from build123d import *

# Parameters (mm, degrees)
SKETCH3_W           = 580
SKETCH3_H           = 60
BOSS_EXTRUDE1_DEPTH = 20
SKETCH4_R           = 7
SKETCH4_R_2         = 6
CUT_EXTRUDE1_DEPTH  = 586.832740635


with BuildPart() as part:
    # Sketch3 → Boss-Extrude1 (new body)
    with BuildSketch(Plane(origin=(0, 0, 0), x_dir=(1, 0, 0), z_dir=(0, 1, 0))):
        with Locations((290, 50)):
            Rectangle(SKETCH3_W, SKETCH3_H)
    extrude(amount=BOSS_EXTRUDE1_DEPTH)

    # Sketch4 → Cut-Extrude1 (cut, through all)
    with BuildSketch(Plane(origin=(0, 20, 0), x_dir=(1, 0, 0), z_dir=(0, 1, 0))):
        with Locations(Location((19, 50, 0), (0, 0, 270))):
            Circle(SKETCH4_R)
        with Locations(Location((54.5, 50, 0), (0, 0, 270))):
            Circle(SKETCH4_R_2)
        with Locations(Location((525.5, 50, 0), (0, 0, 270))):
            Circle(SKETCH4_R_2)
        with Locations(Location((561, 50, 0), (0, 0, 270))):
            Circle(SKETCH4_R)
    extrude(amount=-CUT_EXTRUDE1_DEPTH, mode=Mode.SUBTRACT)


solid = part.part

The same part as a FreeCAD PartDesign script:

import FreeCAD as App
import Part
import Sketcher

V = App.Vector


def add_polygon(sketch, points):
    """Adds a closed chain of lines whose ends are joined by coincident constraints."""
    first, n = sketch.GeometryCount, len(points)
    for a, b in zip(points, points[1:] + points[:1]):
        sketch.addGeometry(Part.LineSegment(App.Vector(*a, 0), App.Vector(*b, 0)), False)
    for i in range(n):
        sketch.addConstraint(Sketcher.Constraint("Coincident", first + i, 2, first + (i + 1) % n, 1))

doc = App.newDocument("Part")
body = doc.addObject("PartDesign::Body", "Body")

sketch1 = body.newObject("Sketcher::SketchObject", "Sketch")
sketch1.AttachmentSupport = (doc.getObject("XZ_Plane"), [""])
sketch1.MapMode = "FlatFace"
add_polygon(sketch1, [(0, -80), (0, -20), (580, -20), (580, -80)])
sketch1.addConstraint([
    Sketcher.Constraint("Vertical", 0),
    Sketcher.Constraint("Horizontal", 1),
    Sketcher.Constraint("Vertical", 2),
    Sketcher.Constraint("Horizontal", 3),
    Sketcher.Constraint("PointOnObject", 0, 2, -2),
    Sketcher.Constraint("DistanceX", 1, 1, 1, 2, 580.0),
    Sketcher.Constraint("DistanceY", 0, 1, 0, 2, 60.0),
    Sketcher.Constraint("DistanceY", 0, 2, -1, 1, 20.0),
])
pad1 = body.newObject("PartDesign::Pad", "Pad")
pad1.Profile = sketch1
pad1.Length = 20
pad1.Reversed = True

sketch2 = body.newObject("Sketcher::SketchObject", "Sketch001")
sketch2.AttachmentSupport = (doc.getObject("XZ_Plane"), [""])
sketch2.MapMode = "FlatFace"
sketch2.AttachmentOffset = App.Placement(V(0, 0, -20), App.Rotation())
sketch2.addGeometry([
    Part.Circle(V(19, -50, 0), V(0, 0, 1), 7),
    Part.Circle(V(54, -50, 0), V(0, 0, 1), 6),
    Part.Circle(V(526, -50, 0), V(0, 0, 1), 6),
    Part.Circle(V(561, -50, 0), V(0, 0, 1), 7),
], False)
sketch2.addConstraint([
    Sketcher.Constraint("Equal", 1, 2),
    Sketcher.Constraint("Equal", 0, 3),
    Sketcher.Constraint("Horizontal", 0, 3, 1, 3),
    Sketcher.Constraint("Horizontal", 1, 3, 2, 3),
    Sketcher.Constraint("Horizontal", 2, 3, 3, 3),
    Sketcher.Constraint("Diameter", 0, 14.0),
    Sketcher.Constraint("Diameter", 1, 12.0),
    Sketcher.Constraint("DistanceX", -1, 1, 0, 3, 19.0),
    Sketcher.Constraint("DistanceY", 0, 3, -1, 1, 50.0),
    Sketcher.Constraint("DistanceX", -1, 1, 3, 3, 561.0),
    Sketcher.Constraint("DistanceX", 1, 3, 2, 3, 471.0),
    Sketcher.Constraint("DistanceX", -1, 1, 1, 3, 54.5),
])
pocket1 = body.newObject("PartDesign::Pocket", "Pocket")
pocket1.Profile = sketch2
pocket1.Type = "ThroughAll"
pocket1.Reversed = True

doc.recompute()
